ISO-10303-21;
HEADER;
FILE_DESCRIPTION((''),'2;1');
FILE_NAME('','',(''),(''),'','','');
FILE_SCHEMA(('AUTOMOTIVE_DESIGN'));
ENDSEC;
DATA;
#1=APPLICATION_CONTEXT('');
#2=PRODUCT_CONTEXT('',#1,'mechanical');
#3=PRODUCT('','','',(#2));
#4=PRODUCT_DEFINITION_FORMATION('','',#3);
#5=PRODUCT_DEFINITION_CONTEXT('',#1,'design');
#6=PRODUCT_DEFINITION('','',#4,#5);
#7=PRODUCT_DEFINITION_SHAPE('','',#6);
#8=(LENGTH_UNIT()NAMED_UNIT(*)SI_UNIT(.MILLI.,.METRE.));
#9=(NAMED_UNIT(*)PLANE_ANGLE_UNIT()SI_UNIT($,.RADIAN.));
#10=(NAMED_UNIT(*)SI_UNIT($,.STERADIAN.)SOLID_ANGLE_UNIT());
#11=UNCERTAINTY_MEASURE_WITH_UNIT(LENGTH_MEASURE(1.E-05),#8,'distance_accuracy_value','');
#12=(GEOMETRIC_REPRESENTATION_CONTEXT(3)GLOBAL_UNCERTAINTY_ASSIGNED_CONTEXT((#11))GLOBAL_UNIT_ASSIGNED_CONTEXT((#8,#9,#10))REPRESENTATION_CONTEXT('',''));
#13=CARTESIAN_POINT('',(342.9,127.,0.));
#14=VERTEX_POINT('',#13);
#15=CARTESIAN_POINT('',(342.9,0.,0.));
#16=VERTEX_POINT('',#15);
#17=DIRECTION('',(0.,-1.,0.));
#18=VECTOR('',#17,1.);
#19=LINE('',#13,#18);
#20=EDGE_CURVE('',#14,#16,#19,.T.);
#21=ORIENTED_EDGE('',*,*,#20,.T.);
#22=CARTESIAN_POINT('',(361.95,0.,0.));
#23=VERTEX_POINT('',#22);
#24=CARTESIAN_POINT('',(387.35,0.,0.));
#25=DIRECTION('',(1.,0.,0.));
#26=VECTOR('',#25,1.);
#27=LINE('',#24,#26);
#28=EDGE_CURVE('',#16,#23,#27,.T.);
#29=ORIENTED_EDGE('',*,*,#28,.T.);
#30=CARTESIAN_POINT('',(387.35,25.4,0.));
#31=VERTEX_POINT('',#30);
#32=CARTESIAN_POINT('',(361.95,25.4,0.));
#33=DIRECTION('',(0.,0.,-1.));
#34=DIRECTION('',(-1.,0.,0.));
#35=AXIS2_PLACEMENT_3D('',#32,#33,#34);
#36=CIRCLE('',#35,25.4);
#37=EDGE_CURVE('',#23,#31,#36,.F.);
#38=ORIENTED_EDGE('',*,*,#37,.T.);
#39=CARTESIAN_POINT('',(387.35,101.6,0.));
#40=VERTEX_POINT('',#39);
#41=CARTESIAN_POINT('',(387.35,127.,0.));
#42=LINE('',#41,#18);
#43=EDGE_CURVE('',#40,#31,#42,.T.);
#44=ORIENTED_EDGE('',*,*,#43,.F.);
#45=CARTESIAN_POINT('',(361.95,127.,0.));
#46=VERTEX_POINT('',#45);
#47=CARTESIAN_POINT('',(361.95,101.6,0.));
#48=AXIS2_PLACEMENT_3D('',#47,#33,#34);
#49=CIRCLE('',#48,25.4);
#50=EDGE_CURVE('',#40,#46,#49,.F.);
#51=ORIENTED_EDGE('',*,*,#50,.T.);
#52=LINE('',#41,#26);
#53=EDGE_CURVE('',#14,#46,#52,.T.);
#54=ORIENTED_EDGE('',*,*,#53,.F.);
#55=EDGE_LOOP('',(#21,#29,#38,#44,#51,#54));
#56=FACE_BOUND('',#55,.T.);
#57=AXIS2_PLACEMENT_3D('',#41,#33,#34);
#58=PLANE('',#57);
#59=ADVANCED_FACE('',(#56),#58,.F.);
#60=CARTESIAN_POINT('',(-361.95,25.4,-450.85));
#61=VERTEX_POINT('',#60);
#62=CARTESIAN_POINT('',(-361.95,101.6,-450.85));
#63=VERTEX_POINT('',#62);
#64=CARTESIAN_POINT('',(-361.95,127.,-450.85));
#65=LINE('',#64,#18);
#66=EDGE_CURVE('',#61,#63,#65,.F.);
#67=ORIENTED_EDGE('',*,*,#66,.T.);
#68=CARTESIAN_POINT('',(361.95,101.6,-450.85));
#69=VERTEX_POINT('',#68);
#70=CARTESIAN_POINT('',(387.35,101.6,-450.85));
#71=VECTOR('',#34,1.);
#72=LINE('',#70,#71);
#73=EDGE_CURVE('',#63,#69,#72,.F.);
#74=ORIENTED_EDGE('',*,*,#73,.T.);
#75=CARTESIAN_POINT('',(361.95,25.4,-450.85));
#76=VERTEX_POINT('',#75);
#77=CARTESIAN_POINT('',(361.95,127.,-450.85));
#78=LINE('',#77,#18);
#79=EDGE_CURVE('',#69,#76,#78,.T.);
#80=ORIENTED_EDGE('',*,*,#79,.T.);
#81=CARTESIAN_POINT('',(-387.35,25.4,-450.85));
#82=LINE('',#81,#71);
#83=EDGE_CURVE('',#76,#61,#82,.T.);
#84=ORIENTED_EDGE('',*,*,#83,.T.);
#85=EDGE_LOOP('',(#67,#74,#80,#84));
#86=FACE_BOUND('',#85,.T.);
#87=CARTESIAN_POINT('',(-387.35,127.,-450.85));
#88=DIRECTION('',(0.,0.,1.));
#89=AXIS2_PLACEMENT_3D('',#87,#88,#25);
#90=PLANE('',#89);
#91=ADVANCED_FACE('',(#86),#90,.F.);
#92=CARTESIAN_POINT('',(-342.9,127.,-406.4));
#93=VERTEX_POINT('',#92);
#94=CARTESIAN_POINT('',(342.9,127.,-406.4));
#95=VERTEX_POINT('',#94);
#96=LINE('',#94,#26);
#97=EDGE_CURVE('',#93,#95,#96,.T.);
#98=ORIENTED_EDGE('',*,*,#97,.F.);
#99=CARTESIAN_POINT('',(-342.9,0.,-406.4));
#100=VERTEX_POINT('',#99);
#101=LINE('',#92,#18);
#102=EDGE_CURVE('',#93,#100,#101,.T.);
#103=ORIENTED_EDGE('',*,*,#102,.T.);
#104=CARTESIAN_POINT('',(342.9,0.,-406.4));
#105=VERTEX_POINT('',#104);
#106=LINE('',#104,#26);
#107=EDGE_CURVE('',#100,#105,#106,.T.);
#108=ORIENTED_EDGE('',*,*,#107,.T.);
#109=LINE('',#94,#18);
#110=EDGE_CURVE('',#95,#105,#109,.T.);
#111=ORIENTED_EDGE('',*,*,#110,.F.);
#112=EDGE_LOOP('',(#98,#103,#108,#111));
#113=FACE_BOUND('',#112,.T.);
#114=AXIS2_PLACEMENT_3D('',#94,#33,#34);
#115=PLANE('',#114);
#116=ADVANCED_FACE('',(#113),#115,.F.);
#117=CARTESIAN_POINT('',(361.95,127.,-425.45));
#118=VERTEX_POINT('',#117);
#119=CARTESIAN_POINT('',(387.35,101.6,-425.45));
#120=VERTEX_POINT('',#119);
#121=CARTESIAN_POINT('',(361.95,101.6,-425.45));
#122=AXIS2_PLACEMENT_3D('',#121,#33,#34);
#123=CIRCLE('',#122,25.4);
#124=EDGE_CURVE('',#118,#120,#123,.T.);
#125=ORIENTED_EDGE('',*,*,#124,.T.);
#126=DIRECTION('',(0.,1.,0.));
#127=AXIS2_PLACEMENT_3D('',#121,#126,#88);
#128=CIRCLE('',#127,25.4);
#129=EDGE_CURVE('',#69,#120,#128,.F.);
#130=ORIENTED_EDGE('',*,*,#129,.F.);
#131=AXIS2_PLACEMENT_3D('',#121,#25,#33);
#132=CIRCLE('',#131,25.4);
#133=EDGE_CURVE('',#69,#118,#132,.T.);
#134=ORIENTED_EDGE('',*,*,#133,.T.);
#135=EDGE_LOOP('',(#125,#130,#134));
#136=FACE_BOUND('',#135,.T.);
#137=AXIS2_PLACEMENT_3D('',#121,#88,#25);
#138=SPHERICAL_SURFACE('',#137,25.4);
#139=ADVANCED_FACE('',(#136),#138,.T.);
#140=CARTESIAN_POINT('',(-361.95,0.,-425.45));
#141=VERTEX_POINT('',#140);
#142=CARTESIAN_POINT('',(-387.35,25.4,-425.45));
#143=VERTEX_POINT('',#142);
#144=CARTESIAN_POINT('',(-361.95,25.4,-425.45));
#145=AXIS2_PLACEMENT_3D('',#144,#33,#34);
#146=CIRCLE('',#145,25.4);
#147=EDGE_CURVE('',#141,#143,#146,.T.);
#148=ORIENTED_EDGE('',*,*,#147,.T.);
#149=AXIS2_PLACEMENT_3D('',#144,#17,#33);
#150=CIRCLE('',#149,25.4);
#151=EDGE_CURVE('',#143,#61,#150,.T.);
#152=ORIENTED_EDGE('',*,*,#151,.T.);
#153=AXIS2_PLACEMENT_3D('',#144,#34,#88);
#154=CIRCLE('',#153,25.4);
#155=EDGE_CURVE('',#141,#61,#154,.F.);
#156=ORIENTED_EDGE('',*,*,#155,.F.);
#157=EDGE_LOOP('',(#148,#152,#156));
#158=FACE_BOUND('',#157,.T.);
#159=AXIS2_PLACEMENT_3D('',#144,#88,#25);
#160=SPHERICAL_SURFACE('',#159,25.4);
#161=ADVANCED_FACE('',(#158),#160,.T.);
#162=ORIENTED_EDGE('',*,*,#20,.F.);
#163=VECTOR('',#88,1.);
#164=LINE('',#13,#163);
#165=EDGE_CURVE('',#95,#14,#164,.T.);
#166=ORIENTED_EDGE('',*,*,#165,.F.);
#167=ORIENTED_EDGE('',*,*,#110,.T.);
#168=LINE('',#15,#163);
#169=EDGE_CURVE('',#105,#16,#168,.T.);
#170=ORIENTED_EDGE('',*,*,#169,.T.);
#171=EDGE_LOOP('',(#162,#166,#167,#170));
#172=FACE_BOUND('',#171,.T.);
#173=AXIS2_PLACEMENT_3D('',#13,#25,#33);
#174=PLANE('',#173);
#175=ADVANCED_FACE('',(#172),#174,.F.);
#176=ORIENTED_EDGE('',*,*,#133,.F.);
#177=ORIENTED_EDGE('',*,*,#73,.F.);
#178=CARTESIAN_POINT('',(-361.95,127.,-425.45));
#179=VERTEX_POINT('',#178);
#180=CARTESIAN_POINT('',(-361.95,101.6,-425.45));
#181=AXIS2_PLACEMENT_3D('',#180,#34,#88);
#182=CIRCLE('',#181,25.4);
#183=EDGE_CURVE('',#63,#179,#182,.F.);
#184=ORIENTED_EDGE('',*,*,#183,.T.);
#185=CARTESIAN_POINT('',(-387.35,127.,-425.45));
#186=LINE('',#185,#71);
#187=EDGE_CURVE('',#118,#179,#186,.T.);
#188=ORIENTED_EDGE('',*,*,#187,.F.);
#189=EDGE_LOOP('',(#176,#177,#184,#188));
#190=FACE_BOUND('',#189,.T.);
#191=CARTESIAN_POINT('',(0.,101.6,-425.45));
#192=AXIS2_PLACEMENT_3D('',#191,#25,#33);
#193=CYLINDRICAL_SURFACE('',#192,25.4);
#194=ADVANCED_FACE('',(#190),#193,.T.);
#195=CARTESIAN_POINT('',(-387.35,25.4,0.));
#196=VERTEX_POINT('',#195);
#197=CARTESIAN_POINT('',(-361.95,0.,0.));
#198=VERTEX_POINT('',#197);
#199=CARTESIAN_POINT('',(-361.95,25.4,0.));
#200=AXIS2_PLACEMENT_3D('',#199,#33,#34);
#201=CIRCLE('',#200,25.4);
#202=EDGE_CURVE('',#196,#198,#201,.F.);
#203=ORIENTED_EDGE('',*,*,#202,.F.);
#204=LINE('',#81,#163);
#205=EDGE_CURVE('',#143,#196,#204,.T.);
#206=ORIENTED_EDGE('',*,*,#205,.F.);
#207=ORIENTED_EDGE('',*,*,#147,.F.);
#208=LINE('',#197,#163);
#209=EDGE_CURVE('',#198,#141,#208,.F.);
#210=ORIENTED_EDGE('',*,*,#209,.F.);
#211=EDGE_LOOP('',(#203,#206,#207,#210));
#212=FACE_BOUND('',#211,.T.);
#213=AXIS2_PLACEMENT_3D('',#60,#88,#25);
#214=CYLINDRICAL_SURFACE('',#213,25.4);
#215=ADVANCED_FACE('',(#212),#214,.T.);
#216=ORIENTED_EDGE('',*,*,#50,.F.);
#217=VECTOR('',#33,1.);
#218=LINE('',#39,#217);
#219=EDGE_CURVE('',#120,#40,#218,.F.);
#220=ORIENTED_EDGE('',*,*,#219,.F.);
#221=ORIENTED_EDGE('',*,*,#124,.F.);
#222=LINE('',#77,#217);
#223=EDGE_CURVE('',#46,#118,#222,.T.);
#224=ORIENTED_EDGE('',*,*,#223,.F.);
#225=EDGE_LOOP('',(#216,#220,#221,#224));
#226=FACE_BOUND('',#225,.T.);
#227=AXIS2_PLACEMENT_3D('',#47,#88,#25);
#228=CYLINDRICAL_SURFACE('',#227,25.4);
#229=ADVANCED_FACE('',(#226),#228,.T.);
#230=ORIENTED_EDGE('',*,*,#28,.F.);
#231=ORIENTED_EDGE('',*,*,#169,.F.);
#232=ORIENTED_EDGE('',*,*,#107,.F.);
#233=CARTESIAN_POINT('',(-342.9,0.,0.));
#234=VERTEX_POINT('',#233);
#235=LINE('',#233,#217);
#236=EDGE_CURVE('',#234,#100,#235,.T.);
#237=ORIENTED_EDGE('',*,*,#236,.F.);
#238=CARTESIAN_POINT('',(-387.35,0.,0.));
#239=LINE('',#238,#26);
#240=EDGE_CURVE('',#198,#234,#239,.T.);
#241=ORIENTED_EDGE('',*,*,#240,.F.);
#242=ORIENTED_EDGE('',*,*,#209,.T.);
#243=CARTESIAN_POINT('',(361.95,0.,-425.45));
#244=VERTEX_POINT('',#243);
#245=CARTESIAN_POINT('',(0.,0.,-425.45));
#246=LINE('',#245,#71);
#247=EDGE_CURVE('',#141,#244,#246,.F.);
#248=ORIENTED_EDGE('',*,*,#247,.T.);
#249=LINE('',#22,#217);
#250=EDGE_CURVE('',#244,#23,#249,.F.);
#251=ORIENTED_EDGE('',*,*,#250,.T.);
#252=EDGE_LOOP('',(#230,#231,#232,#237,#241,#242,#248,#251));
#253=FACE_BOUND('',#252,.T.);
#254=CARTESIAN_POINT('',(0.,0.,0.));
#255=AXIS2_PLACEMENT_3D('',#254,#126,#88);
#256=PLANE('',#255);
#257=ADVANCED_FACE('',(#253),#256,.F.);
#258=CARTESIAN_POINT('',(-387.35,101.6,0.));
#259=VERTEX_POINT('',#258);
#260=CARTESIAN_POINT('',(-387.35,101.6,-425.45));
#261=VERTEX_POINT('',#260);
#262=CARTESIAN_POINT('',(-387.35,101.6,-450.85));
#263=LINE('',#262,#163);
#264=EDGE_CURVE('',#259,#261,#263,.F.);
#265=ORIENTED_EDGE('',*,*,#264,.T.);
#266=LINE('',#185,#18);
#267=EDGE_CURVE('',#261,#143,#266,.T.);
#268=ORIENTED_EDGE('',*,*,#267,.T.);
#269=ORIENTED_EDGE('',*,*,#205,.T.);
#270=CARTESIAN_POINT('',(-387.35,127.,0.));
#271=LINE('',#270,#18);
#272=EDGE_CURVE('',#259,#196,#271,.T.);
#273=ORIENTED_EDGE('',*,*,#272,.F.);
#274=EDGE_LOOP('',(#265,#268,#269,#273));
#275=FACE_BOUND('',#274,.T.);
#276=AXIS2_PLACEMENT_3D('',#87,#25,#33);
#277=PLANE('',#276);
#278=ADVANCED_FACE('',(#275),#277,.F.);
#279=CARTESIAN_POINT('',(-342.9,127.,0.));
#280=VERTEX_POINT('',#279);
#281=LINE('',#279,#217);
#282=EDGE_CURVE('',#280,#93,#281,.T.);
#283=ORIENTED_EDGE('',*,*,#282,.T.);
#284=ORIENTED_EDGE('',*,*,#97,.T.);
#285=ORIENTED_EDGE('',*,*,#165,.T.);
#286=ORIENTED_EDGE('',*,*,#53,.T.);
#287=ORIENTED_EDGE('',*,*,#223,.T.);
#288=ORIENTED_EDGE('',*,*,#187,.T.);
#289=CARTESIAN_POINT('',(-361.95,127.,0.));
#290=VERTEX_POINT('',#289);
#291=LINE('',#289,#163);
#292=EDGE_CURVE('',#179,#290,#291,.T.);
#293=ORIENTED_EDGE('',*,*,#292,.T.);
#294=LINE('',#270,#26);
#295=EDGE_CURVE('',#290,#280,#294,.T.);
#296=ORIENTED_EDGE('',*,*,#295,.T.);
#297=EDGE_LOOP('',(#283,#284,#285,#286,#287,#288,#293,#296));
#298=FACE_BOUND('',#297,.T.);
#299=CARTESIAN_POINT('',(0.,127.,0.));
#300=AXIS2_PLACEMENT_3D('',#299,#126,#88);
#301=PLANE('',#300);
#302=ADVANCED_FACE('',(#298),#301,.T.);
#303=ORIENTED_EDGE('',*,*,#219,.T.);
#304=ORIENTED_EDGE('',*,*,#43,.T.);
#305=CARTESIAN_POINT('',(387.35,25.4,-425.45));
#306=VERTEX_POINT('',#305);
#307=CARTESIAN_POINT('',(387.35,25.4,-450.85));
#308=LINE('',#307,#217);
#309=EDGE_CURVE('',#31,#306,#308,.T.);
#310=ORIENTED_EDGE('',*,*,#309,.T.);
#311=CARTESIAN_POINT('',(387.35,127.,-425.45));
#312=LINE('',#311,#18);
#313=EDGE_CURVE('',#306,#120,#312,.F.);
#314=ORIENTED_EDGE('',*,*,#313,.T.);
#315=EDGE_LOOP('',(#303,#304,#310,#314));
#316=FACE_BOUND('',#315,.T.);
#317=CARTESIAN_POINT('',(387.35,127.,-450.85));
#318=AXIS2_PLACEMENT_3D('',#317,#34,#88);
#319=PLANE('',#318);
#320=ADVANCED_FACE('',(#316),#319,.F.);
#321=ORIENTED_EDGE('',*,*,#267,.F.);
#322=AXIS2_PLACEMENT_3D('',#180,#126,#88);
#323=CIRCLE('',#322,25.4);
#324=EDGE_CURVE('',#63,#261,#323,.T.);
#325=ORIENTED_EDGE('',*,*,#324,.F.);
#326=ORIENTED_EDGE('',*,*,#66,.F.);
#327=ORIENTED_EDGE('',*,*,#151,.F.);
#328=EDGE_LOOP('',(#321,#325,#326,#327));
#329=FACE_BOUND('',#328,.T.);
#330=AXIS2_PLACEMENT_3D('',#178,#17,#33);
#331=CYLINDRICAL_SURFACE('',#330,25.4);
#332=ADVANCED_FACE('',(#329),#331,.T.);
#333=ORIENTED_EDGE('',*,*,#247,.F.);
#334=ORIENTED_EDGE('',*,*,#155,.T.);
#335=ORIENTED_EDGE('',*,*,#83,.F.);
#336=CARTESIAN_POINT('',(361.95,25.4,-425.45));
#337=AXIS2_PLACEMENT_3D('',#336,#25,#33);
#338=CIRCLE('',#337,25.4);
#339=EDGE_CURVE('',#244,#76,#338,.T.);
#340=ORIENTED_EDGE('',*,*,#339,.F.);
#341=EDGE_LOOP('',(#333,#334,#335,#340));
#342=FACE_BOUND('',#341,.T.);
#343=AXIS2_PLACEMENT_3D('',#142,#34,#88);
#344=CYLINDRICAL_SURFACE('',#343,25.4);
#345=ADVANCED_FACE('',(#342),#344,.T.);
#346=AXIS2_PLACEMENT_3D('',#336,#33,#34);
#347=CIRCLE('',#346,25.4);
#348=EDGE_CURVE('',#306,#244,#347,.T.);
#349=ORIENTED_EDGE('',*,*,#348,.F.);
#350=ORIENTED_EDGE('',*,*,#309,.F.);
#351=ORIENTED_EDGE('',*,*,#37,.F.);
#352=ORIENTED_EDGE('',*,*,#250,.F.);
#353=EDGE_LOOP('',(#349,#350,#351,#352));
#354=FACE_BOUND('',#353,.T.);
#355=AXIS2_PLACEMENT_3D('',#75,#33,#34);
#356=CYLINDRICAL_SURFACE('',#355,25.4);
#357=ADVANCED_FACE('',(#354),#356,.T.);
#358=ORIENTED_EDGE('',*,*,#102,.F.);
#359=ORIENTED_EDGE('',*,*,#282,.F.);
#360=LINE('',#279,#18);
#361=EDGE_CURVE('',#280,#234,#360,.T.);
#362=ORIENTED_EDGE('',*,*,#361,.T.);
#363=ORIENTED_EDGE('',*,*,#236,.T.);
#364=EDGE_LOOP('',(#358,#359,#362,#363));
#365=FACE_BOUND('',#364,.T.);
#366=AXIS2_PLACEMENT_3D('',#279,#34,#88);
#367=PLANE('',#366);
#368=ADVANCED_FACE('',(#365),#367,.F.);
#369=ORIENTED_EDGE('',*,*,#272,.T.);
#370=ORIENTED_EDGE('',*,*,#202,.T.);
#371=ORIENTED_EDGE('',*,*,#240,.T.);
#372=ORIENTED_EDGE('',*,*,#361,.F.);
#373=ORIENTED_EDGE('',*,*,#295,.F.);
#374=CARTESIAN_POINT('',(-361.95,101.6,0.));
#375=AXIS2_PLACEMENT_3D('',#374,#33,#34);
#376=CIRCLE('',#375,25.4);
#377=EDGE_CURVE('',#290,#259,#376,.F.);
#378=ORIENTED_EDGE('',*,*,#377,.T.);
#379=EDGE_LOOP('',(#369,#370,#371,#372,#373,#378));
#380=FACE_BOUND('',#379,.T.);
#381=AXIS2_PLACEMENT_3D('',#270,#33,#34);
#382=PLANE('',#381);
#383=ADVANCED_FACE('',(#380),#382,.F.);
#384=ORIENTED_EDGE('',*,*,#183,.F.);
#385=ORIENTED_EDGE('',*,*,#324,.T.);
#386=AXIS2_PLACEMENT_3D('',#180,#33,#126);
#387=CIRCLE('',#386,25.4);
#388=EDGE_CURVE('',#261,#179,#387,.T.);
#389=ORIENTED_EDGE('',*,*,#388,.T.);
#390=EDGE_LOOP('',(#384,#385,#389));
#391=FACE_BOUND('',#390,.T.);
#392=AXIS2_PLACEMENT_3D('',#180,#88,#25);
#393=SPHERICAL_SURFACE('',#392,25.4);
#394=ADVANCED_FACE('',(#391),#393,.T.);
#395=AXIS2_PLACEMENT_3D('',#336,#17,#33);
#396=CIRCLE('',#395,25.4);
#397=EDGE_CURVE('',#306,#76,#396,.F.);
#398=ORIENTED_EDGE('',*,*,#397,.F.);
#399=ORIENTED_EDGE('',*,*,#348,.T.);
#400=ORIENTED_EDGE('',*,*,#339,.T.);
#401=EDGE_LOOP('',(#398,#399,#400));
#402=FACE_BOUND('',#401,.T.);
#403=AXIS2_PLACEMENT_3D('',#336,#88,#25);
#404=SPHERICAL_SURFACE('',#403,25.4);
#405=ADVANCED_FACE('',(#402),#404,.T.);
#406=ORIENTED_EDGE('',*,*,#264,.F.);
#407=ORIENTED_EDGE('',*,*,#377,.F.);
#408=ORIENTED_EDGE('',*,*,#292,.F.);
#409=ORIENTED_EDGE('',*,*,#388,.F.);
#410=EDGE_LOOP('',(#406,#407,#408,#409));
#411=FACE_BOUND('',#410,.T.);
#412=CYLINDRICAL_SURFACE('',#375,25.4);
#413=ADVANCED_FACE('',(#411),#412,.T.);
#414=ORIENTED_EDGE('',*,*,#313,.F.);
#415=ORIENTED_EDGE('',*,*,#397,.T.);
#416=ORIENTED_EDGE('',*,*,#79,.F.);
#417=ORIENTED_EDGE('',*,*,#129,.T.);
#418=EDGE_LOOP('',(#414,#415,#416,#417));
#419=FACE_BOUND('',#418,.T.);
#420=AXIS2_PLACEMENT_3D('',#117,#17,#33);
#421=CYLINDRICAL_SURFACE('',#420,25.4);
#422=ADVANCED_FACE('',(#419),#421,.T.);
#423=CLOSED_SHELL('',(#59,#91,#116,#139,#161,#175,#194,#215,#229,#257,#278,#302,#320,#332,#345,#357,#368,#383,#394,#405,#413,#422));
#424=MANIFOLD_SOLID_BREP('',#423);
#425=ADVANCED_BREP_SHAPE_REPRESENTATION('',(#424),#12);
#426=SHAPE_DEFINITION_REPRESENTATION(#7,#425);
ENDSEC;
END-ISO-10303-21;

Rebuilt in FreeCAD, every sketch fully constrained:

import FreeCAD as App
import Part
import Sketcher
Q = App.Units.Quantity


def edges_at(feature, points):
    """Names of the edges that pass closest to the given points."""
    edges = feature.Shape.Edges
    near = lambda p: min(range(len(edges)), key=lambda i: edges[i].distToShape(Part.Vertex(*p))[0])
    return sorted({f"Edge{near(p) + 1}" for p in points})


def add_polygon(sketch, points):
    """Adds a closed chain of lines whose ends are joined by coincident constraints."""
    first, n = sketch.GeometryCount, len(points)
    for a, b in zip(points, points[1:] + points[:1]):
        sketch.addGeometry(Part.LineSegment(App.Vector(*a, 0), App.Vector(*b, 0)), False)
    for i in range(n):
        sketch.addConstraint(Sketcher.Constraint("Coincident", first + i, 2, first + (i + 1) % n, 1))

doc = App.newDocument("Part")
params = doc.addObject("Spreadsheet::Sheet", "Params")
for row, (alias, value) in enumerate([
    ("sketch1_width", "27 in"),
    ("sketch1_height", "16 in"),
    ("sketch1_width2", "30.5 in"),
    ("sketch1_height2", "17.75 in"),
    ("pad1_length", "5 in"),
    ("fillet_radius", "1 in"),
], start=1):
    params.set(f"A{row}", alias)
    params.set(f"B{row}", "=" + value)
    params.setAlias(f"B{row}", alias)

body = doc.addObject("PartDesign::Body", "Body")

sketch1 = doc.addObject("Sketcher::SketchObject", "Sketch")
body.addObject(sketch1)
sketch1.AttachmentSupport = (doc.XZ_Plane, [""])
sketch1.MapMode = "FlatFace"
add_polygon(sketch1, [(387, -451), (-387, -451), (-387, 0), (-343, 0), (-343, -406), (343, -406), (343, 0), (387, 0)])
sketch1.addConstraint(Sketcher.Constraint("Horizontal", 0))
sketch1.addConstraint(Sketcher.Constraint("Vertical", 1))
sketch1.addConstraint(Sketcher.Constraint("Horizontal", 2))
sketch1.addConstraint(Sketcher.Constraint("Vertical", 3))
sketch1.addConstraint(Sketcher.Constraint("Horizontal", 4))
sketch1.addConstraint(Sketcher.Constraint("Vertical", 5))
sketch1.addConstraint(Sketcher.Constraint("Horizontal", 6))
sketch1.addConstraint(Sketcher.Constraint("Vertical", 7))
sketch1.addConstraint(Sketcher.Constraint("Symmetric", 2, 2, 5, 2, -1, 1))
sketch1.addConstraint(Sketcher.Constraint("Symmetric", 1, 2, 6, 2, -2))
sketch1.addConstraint(Sketcher.Constraint("DistanceX", 4, 1, 4, 2, Q("27 in")))
sketch1.addConstraint(Sketcher.Constraint("DistanceY", 3, 2, 3, 1, Q("16 in")))
sketch1.addConstraint(Sketcher.Constraint("DistanceX", 0, 2, 0, 1, Q("30.5 in")))
sketch1.addConstraint(Sketcher.Constraint("DistanceY", 1, 1, 1, 2, Q("17.75 in")))
sketch1.setExpression("Constraints[18]", "Params.sketch1_width")
sketch1.setExpression("Constraints[19]", "Params.sketch1_height")
sketch1.setExpression("Constraints[20]", "Params.sketch1_width2")
sketch1.setExpression("Constraints[21]", "Params.sketch1_height2")
pad1 = doc.addObject("PartDesign::Pad", "Pad")
body.addObject(pad1)
pad1.Profile = sketch1
pad1.setExpression("Length", "Params.pad1_length")
pad1.Reversed = True
doc.recompute()

fillet = doc.addObject("PartDesign::Fillet", "Fillet")
body.addObject(fillet)
fillet.Base = (pad1, edges_at(pad1, [
    (0, 0, -450.85),
    (387.35, 0, -225.425),
    (387.35, 127, -225.425),
    (-387.35, 63.5, -450.85),
    (387.35, 63.5, -450.85),
    (0, 127, -450.85),
    (-387.35, 127, -225.425),
    (-387.35, 0, -225.425),
]))
fillet.setExpression("Radius", "Params.fillet_radius")

doc.recompute()
